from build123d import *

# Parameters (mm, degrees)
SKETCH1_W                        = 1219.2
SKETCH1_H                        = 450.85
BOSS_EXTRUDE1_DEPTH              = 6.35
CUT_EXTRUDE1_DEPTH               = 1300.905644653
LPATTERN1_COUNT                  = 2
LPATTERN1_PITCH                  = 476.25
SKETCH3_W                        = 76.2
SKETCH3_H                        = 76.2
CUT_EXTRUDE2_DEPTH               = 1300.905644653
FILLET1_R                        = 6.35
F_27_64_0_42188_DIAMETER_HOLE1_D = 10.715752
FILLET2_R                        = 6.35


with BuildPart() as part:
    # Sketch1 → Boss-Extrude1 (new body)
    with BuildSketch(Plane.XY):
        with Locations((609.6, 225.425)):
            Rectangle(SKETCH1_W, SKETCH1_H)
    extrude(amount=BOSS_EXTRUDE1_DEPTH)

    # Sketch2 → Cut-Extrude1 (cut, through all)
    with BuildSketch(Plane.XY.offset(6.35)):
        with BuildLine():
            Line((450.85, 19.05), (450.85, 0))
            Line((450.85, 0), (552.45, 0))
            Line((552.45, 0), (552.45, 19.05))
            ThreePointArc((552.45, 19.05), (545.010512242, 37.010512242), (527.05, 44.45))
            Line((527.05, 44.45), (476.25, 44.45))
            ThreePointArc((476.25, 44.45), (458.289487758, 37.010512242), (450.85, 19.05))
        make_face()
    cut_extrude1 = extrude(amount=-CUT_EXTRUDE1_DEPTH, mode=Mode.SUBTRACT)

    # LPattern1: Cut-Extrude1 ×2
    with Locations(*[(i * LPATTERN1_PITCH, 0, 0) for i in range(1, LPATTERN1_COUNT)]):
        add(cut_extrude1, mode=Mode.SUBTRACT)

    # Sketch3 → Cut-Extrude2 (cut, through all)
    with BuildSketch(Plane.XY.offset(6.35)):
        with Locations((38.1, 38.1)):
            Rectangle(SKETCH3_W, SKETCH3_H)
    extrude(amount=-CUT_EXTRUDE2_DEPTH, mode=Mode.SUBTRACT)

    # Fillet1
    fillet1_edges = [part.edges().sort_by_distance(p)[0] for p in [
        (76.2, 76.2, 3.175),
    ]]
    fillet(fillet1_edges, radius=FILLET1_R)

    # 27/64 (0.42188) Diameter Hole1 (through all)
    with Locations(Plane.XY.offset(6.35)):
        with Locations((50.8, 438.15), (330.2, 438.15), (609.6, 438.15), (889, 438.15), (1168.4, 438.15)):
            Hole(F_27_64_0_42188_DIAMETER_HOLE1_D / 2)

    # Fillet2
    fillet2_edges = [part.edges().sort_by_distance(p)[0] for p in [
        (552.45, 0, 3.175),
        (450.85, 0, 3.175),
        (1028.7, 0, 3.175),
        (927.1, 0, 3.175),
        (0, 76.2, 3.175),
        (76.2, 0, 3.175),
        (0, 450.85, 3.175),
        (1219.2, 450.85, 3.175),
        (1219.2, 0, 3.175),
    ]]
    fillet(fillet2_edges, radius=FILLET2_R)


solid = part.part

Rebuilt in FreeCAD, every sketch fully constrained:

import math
import FreeCAD as App
import Part
import Sketcher

V = App.Vector
Q = App.Units.Quantity


def edges_at(feature, points):
    """Names of the edges that pass closest to the given points."""
    edges = feature.Shape.Edges
    near = lambda p: min(range(len(edges)), key=lambda i: edges[i].distToShape(Part.Vertex(*p))[0])
    return sorted({f"Edge{near(p) + 1}" for p in points})


def add_polygon(sketch, points):
    """Adds a closed chain of lines whose ends are joined by coincident constraints."""
    first, n = sketch.GeometryCount, len(points)
    for a, b in zip(points, points[1:] + points[:1]):
        sketch.addGeometry(Part.LineSegment(App.Vector(*a, 0), App.Vector(*b, 0)), False)
    for i in range(n):
        sketch.addConstraint(Sketcher.Constraint("Coincident", first + i, 2, first + (i + 1) % n, 1))

doc = App.newDocument("Part")
body = doc.addObject("PartDesign::Body", "Body")

# Sketch on XY plane
sketch1 = doc.addObject("Sketcher::SketchObject", "Sketch")
body.addObject(sketch1)
sketch1.AttachmentSupport = (doc.XY_Plane, [""])
sketch1.MapMode = "FlatFace"
add_polygon(sketch1, [(0, 451), (0, 0), (1219, 0), (1219, 451)])  # lines 0-3
sketch1.addConstraint([
    Sketcher.Constraint("Vertical", 0),
    Sketcher.Constraint("Horizontal", 1),
    Sketcher.Constraint("Vertical", 2),
    Sketcher.Constraint("Horizontal", 3),
    Sketcher.Constraint("Coincident", 0, 2, -1, 1),
    Sketcher.Constraint("DistanceX", 1, 1, 1, 2, Q("48 in")),
    Sketcher.Constraint("DistanceY", 0, 2, 0, 1, Q("17.75 in")),
])
pad1 = doc.addObject("PartDesign::Pad", "Pad")
body.addObject(pad1)
pad1.Profile = sketch1
pad1.Length = Q("0.25 in")

# Sketch on XY plane
sketch2 = doc.addObject("Sketcher::SketchObject", "Sketch001")
body.addObject(sketch2)
sketch2.AttachmentSupport = (doc.XY_Plane, [""])
sketch2.MapMode = "FlatFace"
sketch2.AttachmentOffset = App.Placement(V(0, 0, 0.25 * 25.4), App.Rotation())
sketch2.addGeometry([
    Part.LineSegment(V(451, 19, 0), V(451, 0, 0)),  # 0
    Part.LineSegment(V(451, 0, 0), V(552, 0, 0)),  # 1
    Part.LineSegment(V(552, 0, 0), V(552, 19, 0)),  # 2
    Part.ArcOfCircle(Part.Circle(V(527, 19, 0), V(0, 0, 1), 25), math.radians(0), math.radians(90)),  # 3
    Part.LineSegment(V(527, 44, 0), V(476, 44, 0)),  # 4
    Part.ArcOfCircle(Part.Circle(V(476, 19, 0), V(0, 0, 1), 25), math.radians(90), math.radians(180)),  # 5
], False)
sketch2.addConstraint([
    Sketcher.Constraint("Coincident", 0, 2, 1, 1),
    Sketcher.Constraint("Coincident", 1, 2, 2, 1),
    Sketcher.Constraint("Tangent", 2, 2, 3, 1),
    Sketcher.Constraint("Tangent", 3, 2, 4, 1),
    Sketcher.Constraint("Tangent", 4, 2, 5, 1),
    Sketcher.Constraint("Tangent", 5, 2, 0, 1),
    Sketcher.Constraint("Vertical", 0),
    Sketcher.Constraint("Horizontal", 1),
    Sketcher.Constraint("Vertical", 2),
    Sketcher.Constraint("Horizontal", 4),
    Sketcher.Constraint("Equal", 3, 5),
    Sketcher.Constraint("PointOnObject", 0, 2, -1),
    Sketcher.Constraint("Radius", 3, Q("1 in")),
    Sketcher.Constraint("DistanceX", 1, 1, 1, 2, Q("4 in")),
    Sketcher.Constraint("DistanceY", 0, 2, 0, 1, Q("0.75 in")),
    Sketcher.Constraint("DistanceX", -1, 1, 3, 3, Q("20.75 in")),
])
pocket1 = doc.addObject("PartDesign::Pocket", "Pocket")
body.addObject(pocket1)
pocket1.Profile = sketch2
pocket1.Type = "ThroughAll"
doc.recompute()

linearpattern = doc.addObject("PartDesign::LinearPattern", "LinearPattern")
body.addObject(linearpattern)
linearpattern.Originals = [pocket1]
linearpattern.Direction = (doc.X_Axis, [""])
linearpattern.Mode = "offset"
linearpattern.Offset = Q("18.75 in")
linearpattern.Occurrences = 2
body.Tip = linearpattern

# Sketch on XY plane
sketch3 = doc.addObject("Sketcher::SketchObject", "Sketch002")
body.addObject(sketch3)
sketch3.AttachmentSupport = (doc.XY_Plane, [""])
sketch3.MapMode = "FlatFace"
sketch3.AttachmentOffset = App.Placement(V(0, 0, 0.25 * 25.4), App.Rotation())
add_polygon(sketch3, [(0, 76), (0, 0), (76, 0), (76, 76)])  # lines 0-3
sketch3.addConstraint([
    Sketcher.Constraint("Vertical", 0),
    Sketcher.Constraint("Horizontal", 1),
    Sketcher.Constraint("Vertical", 2),
    Sketcher.Constraint("Horizontal", 3),
    Sketcher.Constraint("Coincident", 0, 2, -1, 1),
    Sketcher.Constraint("Equal", 3, 0),
    Sketcher.Constraint("DistanceX", 1, 1, 1, 2, Q("3 in")),
])
pocket2 = doc.addObject("PartDesign::Pocket", "Pocket001")
body.addObject(pocket2)
pocket2.Profile = sketch3
pocket2.Type = "ThroughAll"
doc.recompute()

fillet = doc.addObject("PartDesign::Fillet", "Fillet")
body.addObject(fillet)
fillet.Base = (pocket2, edges_at(pocket2, [(76.2, 76.2, 3.175)]))
fillet.Radius = Q("0.25 in")

# Sketch on XY plane
sketch4 = doc.addObject("Sketcher::SketchObject", "Sketch003")
body.addObject(sketch4)
sketch4.AttachmentSupport = (doc.XY_Plane, [""])
sketch4.MapMode = "FlatFace"
sketch4.AttachmentOffset = App.Placement(V(0, 0, 0.25 * 25.4), App.Rotation())
sketch4.addGeometry([
    Part.Circle(V(51, 438, 0), V(0, 0, 1), 5),  # 0
    Part.Circle(V(330, 438, 0), V(0, 0, 1), 5),  # 1
    Part.Circle(V(610, 438, 0), V(0, 0, 1), 5),  # 2
    Part.Circle(V(889, 438, 0), V(0, 0, 1), 5),  # 3
    Part.Circle(V(1168, 438, 0), V(0, 0, 1), 5),  # 4
], False)
sketch4.addConstraint([
    Sketcher.Constraint("Equal", 0, 1),
    Sketcher.Constraint("Equal", 1, 2),
    Sketcher.Constraint("Equal", 2, 3),
    Sketcher.Constraint("Equal", 3, 4),
    Sketcher.Constraint("Horizontal", 0, 3, 1, 3),
    Sketcher.Constraint("Horizontal", 1, 3, 2, 3),
    Sketcher.Constraint("Horizontal", 2, 3, 3, 3),
    Sketcher.Constraint("Horizontal", 3, 3, 4, 3),
    Sketcher.Constraint("DistanceX", -1, 1, 0, 3, Q("2 in")),
    Sketcher.Constraint("DistanceX", -1, 1, 1, 3, Q("13 in")),
    Sketcher.Constraint("DistanceX", -1, 1, 2, 3, Q("24 in")),
    Sketcher.Constraint("DistanceX", -1, 1, 3, 3, Q("35 in")),
    Sketcher.Constraint("DistanceX", -1, 1, 4, 3, Q("46 in")),
    Sketcher.Constraint("DistanceY", -1, 1, 0, 3, Q("17.25 in")),
    Sketcher.Constraint("Diameter", 0, 10.715752),
])
doc.recompute()
hole = doc.addObject("PartDesign::Hole", "Hole")
body.addObject(hole)
hole.Profile = sketch4
hole.ThreadType = "None"
hole.Diameter = 10.715752
hole.DepthType = "ThroughAll"
doc.recompute()

fillet2 = doc.addObject("PartDesign::Fillet", "Fillet001")
body.addObject(fillet2)
fillet2.Base = (hole, edges_at(hole, [
    (552.45, 0, 3.175),
    (450.85, 0, 3.175),
    (1028.7, 0, 3.175),
    (927.1, 0, 3.175),
    (0, 76.2, 3.175),
    (76.2, 0, 3.175),
    (0, 450.85, 3.175),
    (1219.2, 450.85, 3.175),
    (1219.2, 0, 3.175),
]))
fillet2.Radius = Q("0.25 in")

doc.recompute()
